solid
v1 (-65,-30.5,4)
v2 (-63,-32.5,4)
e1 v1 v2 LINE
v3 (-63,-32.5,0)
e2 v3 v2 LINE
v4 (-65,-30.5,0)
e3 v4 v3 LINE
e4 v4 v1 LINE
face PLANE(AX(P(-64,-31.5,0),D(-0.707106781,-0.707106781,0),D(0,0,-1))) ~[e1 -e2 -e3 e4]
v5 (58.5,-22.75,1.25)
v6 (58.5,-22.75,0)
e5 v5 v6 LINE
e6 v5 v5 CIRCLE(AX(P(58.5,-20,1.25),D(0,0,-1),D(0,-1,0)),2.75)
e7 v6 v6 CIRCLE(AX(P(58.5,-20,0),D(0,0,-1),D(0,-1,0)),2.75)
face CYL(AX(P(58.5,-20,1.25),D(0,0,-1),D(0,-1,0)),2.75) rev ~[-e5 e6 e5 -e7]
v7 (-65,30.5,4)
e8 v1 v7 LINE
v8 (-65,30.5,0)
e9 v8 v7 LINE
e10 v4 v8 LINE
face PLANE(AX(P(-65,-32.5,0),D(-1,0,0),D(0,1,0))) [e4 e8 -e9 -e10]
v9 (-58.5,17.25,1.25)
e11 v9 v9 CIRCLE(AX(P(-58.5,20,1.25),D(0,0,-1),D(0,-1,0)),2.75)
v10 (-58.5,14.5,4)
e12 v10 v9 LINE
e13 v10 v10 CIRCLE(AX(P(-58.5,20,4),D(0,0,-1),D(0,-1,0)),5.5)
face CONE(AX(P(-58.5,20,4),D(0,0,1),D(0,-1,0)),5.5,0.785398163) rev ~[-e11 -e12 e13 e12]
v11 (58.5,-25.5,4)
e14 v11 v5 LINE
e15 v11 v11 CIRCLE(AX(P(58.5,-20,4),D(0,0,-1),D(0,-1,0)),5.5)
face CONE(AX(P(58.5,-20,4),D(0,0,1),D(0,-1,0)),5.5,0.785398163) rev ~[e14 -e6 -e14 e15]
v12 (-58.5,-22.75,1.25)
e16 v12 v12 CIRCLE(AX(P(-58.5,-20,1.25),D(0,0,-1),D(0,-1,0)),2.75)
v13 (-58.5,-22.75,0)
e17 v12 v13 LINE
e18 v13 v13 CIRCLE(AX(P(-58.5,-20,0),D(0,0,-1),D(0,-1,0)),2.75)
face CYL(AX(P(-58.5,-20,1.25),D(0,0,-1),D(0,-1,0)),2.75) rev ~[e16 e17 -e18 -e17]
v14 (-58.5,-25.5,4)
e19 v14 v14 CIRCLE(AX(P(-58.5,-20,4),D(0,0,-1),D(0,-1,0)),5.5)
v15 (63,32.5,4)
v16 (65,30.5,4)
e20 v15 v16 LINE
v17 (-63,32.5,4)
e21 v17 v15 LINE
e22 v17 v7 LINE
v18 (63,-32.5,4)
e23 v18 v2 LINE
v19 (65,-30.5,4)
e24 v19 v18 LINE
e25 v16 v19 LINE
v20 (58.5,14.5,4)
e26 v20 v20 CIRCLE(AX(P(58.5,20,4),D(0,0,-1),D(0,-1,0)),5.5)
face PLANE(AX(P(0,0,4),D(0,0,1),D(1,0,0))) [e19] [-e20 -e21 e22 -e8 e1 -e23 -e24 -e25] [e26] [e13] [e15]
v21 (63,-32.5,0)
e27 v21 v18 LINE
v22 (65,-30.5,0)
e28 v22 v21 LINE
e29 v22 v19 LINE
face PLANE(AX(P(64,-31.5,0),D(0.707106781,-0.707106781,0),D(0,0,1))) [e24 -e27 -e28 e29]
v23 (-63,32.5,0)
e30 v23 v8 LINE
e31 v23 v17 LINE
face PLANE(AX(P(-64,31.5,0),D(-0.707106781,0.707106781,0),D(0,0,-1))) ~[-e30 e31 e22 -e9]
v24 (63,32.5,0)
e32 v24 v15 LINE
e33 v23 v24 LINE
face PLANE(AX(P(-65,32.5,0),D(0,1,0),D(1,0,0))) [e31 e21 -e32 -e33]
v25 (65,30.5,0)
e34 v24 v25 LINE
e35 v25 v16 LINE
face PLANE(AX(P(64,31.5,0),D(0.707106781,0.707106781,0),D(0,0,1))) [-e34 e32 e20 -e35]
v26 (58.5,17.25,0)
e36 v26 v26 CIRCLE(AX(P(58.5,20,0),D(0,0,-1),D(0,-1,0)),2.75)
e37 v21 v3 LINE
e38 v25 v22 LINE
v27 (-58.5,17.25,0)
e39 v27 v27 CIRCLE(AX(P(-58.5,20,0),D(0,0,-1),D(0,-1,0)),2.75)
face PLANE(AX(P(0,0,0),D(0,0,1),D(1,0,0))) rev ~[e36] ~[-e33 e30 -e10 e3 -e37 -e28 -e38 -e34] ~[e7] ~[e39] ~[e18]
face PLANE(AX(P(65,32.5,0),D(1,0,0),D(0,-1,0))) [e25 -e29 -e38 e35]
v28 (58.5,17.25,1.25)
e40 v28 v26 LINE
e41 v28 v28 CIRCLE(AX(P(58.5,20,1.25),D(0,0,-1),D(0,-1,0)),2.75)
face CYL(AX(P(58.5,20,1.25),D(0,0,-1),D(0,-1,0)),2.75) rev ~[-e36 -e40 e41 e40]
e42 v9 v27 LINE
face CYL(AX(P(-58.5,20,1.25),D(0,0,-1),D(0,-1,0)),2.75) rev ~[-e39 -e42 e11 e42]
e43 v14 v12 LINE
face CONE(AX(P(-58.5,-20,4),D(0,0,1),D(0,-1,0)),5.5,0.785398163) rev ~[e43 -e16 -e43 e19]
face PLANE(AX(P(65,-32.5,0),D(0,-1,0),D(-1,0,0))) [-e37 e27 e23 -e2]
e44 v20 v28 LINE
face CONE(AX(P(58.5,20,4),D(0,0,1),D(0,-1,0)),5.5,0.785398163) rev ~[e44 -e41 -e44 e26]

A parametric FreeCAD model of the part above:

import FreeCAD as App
import Part
import Sketcher
Q = App.Units.Quantity


def edges_at(feature, points):
    """Names of the edges that pass closest to the given points."""
    edges = feature.Shape.Edges
    near = lambda p: min(range(len(edges)), key=lambda i: edges[i].distToShape(Part.Vertex(*p))[0])
    return sorted({f"Edge{near(p) + 1}" for p in points})


def add_polygon(sketch, points):
    """Adds a closed chain of lines whose ends are joined by coincident constraints."""
    first, n = sketch.GeometryCount, len(points)
    for a, b in zip(points, points[1:] + points[:1]):
        sketch.addGeometry(Part.LineSegment(App.Vector(*a, 0), App.Vector(*b, 0)), False)
    for i in range(n):
        sketch.addConstraint(Sketcher.Constraint("Coincident", first + i, 2, first + (i + 1) % n, 1))

doc = App.newDocument("Part")
body = doc.addObject("PartDesign::Body", "Body")

# Sketch on XY plane
sketch1 = body.newObject("Sketcher::SketchObject", "Sketch")
sketch1.AttachmentSupport = (doc.getObject("XY_Plane"), [""])
sketch1.MapMode = "FlatFace"
add_polygon(sketch1, [(65, 32), (-65, 32), (-65, -32), (65, -32)])  # lines 0-3
sketch1.addConstraint(Sketcher.Constraint("Horizontal", 0))
sketch1.addConstraint(Sketcher.Constraint("Vertical", 1))
sketch1.addConstraint(Sketcher.Constraint("Horizontal", 2))
sketch1.addConstraint(Sketcher.Constraint("Vertical", 3))
sketch1.addConstraint(Sketcher.Constraint("Symmetric", 0, 2, 2, 2, -1, 1))
sketch1.addConstraint(Sketcher.Constraint("DistanceX", 0, 2, 0, 1, Q("130 mm")))
sketch1.addConstraint(Sketcher.Constraint("DistanceY", 1, 2, 1, 1, Q("65 mm")))
pad1 = body.newObject("PartDesign::Pad", "Pad")
pad1.Profile = sketch1
pad1.Length = 4

# Sketch on XY plane
sketch2 = body.newObject("Sketcher::SketchObject", "Sketch001")
sketch2.AttachmentSupport = (doc.getObject("XY_Plane"), [""])
sketch2.MapMode = "FlatFace"
sketch2.AttachmentOffset = App.Placement(App.Vector(0, 0, 4), App.Rotation())
sketch2.addGeometry(Part.Circle(App.Vector(-58.5, 20, 0), App.Vector(0, 0, 1), 2.8), False)
sketch2.addGeometry(Part.Circle(App.Vector(58.5, 20, 0), App.Vector(0, 0, 1), 2.8), False)
sketch2.addGeometry(Part.Circle(App.Vector(58.5, -20, 0), App.Vector(0, 0, 1), 2.8), False)
sketch2.addGeometry(Part.Circle(App.Vector(-58.5, -20, 0), App.Vector(0, 0, 1), 2.8), False)
sketch2.addConstraint(Sketcher.Constraint("Equal", 0, 1))
sketch2.addConstraint(Sketcher.Constraint("Equal", 1, 2))
sketch2.addConstraint(Sketcher.Constraint("Equal", 2, 3))
sketch2.addConstraint(Sketcher.Constraint("Symmetric", 0, 3, 2, 3, -1, 1))
sketch2.addConstraint(Sketcher.Constraint("Symmetric", 1, 3, 3, 3, -1, 1))
sketch2.addConstraint(Sketcher.Constraint("Symmetric", 0, 3, 1, 3, -2))
sketch2.addConstraint(Sketcher.Constraint("Diameter", 0, Q("5.5 mm")))
sketch2.addConstraint(Sketcher.Constraint("DistanceY", -1, 1, 0, 3, Q("20 mm")))
sketch2.addConstraint(Sketcher.Constraint("DistanceX", 0, 3, 1, 3, Q("117 mm")))
doc.recompute()
hole = body.newObject("PartDesign::Hole", "Hole")
hole.Profile = sketch2
hole.ThreadType = "None"
hole.Diameter = 5.5
hole.DepthType = "ThroughAll"
hole.HoleCutType = "Countersink"
hole.HoleCutDiameter = 11
hole.HoleCutCountersinkAngle = 90
doc.recompute()

chamfer = body.newObject("PartDesign::Chamfer", "Chamfer")
chamfer.Base = (hole, edges_at(hole, [
    (65, 32.5, 2),
    (65, -32.5, 2),
    (-65, -32.5, 2),
    (-65, 32.5, 2),
]))
chamfer.Size = 2

doc.recompute()
